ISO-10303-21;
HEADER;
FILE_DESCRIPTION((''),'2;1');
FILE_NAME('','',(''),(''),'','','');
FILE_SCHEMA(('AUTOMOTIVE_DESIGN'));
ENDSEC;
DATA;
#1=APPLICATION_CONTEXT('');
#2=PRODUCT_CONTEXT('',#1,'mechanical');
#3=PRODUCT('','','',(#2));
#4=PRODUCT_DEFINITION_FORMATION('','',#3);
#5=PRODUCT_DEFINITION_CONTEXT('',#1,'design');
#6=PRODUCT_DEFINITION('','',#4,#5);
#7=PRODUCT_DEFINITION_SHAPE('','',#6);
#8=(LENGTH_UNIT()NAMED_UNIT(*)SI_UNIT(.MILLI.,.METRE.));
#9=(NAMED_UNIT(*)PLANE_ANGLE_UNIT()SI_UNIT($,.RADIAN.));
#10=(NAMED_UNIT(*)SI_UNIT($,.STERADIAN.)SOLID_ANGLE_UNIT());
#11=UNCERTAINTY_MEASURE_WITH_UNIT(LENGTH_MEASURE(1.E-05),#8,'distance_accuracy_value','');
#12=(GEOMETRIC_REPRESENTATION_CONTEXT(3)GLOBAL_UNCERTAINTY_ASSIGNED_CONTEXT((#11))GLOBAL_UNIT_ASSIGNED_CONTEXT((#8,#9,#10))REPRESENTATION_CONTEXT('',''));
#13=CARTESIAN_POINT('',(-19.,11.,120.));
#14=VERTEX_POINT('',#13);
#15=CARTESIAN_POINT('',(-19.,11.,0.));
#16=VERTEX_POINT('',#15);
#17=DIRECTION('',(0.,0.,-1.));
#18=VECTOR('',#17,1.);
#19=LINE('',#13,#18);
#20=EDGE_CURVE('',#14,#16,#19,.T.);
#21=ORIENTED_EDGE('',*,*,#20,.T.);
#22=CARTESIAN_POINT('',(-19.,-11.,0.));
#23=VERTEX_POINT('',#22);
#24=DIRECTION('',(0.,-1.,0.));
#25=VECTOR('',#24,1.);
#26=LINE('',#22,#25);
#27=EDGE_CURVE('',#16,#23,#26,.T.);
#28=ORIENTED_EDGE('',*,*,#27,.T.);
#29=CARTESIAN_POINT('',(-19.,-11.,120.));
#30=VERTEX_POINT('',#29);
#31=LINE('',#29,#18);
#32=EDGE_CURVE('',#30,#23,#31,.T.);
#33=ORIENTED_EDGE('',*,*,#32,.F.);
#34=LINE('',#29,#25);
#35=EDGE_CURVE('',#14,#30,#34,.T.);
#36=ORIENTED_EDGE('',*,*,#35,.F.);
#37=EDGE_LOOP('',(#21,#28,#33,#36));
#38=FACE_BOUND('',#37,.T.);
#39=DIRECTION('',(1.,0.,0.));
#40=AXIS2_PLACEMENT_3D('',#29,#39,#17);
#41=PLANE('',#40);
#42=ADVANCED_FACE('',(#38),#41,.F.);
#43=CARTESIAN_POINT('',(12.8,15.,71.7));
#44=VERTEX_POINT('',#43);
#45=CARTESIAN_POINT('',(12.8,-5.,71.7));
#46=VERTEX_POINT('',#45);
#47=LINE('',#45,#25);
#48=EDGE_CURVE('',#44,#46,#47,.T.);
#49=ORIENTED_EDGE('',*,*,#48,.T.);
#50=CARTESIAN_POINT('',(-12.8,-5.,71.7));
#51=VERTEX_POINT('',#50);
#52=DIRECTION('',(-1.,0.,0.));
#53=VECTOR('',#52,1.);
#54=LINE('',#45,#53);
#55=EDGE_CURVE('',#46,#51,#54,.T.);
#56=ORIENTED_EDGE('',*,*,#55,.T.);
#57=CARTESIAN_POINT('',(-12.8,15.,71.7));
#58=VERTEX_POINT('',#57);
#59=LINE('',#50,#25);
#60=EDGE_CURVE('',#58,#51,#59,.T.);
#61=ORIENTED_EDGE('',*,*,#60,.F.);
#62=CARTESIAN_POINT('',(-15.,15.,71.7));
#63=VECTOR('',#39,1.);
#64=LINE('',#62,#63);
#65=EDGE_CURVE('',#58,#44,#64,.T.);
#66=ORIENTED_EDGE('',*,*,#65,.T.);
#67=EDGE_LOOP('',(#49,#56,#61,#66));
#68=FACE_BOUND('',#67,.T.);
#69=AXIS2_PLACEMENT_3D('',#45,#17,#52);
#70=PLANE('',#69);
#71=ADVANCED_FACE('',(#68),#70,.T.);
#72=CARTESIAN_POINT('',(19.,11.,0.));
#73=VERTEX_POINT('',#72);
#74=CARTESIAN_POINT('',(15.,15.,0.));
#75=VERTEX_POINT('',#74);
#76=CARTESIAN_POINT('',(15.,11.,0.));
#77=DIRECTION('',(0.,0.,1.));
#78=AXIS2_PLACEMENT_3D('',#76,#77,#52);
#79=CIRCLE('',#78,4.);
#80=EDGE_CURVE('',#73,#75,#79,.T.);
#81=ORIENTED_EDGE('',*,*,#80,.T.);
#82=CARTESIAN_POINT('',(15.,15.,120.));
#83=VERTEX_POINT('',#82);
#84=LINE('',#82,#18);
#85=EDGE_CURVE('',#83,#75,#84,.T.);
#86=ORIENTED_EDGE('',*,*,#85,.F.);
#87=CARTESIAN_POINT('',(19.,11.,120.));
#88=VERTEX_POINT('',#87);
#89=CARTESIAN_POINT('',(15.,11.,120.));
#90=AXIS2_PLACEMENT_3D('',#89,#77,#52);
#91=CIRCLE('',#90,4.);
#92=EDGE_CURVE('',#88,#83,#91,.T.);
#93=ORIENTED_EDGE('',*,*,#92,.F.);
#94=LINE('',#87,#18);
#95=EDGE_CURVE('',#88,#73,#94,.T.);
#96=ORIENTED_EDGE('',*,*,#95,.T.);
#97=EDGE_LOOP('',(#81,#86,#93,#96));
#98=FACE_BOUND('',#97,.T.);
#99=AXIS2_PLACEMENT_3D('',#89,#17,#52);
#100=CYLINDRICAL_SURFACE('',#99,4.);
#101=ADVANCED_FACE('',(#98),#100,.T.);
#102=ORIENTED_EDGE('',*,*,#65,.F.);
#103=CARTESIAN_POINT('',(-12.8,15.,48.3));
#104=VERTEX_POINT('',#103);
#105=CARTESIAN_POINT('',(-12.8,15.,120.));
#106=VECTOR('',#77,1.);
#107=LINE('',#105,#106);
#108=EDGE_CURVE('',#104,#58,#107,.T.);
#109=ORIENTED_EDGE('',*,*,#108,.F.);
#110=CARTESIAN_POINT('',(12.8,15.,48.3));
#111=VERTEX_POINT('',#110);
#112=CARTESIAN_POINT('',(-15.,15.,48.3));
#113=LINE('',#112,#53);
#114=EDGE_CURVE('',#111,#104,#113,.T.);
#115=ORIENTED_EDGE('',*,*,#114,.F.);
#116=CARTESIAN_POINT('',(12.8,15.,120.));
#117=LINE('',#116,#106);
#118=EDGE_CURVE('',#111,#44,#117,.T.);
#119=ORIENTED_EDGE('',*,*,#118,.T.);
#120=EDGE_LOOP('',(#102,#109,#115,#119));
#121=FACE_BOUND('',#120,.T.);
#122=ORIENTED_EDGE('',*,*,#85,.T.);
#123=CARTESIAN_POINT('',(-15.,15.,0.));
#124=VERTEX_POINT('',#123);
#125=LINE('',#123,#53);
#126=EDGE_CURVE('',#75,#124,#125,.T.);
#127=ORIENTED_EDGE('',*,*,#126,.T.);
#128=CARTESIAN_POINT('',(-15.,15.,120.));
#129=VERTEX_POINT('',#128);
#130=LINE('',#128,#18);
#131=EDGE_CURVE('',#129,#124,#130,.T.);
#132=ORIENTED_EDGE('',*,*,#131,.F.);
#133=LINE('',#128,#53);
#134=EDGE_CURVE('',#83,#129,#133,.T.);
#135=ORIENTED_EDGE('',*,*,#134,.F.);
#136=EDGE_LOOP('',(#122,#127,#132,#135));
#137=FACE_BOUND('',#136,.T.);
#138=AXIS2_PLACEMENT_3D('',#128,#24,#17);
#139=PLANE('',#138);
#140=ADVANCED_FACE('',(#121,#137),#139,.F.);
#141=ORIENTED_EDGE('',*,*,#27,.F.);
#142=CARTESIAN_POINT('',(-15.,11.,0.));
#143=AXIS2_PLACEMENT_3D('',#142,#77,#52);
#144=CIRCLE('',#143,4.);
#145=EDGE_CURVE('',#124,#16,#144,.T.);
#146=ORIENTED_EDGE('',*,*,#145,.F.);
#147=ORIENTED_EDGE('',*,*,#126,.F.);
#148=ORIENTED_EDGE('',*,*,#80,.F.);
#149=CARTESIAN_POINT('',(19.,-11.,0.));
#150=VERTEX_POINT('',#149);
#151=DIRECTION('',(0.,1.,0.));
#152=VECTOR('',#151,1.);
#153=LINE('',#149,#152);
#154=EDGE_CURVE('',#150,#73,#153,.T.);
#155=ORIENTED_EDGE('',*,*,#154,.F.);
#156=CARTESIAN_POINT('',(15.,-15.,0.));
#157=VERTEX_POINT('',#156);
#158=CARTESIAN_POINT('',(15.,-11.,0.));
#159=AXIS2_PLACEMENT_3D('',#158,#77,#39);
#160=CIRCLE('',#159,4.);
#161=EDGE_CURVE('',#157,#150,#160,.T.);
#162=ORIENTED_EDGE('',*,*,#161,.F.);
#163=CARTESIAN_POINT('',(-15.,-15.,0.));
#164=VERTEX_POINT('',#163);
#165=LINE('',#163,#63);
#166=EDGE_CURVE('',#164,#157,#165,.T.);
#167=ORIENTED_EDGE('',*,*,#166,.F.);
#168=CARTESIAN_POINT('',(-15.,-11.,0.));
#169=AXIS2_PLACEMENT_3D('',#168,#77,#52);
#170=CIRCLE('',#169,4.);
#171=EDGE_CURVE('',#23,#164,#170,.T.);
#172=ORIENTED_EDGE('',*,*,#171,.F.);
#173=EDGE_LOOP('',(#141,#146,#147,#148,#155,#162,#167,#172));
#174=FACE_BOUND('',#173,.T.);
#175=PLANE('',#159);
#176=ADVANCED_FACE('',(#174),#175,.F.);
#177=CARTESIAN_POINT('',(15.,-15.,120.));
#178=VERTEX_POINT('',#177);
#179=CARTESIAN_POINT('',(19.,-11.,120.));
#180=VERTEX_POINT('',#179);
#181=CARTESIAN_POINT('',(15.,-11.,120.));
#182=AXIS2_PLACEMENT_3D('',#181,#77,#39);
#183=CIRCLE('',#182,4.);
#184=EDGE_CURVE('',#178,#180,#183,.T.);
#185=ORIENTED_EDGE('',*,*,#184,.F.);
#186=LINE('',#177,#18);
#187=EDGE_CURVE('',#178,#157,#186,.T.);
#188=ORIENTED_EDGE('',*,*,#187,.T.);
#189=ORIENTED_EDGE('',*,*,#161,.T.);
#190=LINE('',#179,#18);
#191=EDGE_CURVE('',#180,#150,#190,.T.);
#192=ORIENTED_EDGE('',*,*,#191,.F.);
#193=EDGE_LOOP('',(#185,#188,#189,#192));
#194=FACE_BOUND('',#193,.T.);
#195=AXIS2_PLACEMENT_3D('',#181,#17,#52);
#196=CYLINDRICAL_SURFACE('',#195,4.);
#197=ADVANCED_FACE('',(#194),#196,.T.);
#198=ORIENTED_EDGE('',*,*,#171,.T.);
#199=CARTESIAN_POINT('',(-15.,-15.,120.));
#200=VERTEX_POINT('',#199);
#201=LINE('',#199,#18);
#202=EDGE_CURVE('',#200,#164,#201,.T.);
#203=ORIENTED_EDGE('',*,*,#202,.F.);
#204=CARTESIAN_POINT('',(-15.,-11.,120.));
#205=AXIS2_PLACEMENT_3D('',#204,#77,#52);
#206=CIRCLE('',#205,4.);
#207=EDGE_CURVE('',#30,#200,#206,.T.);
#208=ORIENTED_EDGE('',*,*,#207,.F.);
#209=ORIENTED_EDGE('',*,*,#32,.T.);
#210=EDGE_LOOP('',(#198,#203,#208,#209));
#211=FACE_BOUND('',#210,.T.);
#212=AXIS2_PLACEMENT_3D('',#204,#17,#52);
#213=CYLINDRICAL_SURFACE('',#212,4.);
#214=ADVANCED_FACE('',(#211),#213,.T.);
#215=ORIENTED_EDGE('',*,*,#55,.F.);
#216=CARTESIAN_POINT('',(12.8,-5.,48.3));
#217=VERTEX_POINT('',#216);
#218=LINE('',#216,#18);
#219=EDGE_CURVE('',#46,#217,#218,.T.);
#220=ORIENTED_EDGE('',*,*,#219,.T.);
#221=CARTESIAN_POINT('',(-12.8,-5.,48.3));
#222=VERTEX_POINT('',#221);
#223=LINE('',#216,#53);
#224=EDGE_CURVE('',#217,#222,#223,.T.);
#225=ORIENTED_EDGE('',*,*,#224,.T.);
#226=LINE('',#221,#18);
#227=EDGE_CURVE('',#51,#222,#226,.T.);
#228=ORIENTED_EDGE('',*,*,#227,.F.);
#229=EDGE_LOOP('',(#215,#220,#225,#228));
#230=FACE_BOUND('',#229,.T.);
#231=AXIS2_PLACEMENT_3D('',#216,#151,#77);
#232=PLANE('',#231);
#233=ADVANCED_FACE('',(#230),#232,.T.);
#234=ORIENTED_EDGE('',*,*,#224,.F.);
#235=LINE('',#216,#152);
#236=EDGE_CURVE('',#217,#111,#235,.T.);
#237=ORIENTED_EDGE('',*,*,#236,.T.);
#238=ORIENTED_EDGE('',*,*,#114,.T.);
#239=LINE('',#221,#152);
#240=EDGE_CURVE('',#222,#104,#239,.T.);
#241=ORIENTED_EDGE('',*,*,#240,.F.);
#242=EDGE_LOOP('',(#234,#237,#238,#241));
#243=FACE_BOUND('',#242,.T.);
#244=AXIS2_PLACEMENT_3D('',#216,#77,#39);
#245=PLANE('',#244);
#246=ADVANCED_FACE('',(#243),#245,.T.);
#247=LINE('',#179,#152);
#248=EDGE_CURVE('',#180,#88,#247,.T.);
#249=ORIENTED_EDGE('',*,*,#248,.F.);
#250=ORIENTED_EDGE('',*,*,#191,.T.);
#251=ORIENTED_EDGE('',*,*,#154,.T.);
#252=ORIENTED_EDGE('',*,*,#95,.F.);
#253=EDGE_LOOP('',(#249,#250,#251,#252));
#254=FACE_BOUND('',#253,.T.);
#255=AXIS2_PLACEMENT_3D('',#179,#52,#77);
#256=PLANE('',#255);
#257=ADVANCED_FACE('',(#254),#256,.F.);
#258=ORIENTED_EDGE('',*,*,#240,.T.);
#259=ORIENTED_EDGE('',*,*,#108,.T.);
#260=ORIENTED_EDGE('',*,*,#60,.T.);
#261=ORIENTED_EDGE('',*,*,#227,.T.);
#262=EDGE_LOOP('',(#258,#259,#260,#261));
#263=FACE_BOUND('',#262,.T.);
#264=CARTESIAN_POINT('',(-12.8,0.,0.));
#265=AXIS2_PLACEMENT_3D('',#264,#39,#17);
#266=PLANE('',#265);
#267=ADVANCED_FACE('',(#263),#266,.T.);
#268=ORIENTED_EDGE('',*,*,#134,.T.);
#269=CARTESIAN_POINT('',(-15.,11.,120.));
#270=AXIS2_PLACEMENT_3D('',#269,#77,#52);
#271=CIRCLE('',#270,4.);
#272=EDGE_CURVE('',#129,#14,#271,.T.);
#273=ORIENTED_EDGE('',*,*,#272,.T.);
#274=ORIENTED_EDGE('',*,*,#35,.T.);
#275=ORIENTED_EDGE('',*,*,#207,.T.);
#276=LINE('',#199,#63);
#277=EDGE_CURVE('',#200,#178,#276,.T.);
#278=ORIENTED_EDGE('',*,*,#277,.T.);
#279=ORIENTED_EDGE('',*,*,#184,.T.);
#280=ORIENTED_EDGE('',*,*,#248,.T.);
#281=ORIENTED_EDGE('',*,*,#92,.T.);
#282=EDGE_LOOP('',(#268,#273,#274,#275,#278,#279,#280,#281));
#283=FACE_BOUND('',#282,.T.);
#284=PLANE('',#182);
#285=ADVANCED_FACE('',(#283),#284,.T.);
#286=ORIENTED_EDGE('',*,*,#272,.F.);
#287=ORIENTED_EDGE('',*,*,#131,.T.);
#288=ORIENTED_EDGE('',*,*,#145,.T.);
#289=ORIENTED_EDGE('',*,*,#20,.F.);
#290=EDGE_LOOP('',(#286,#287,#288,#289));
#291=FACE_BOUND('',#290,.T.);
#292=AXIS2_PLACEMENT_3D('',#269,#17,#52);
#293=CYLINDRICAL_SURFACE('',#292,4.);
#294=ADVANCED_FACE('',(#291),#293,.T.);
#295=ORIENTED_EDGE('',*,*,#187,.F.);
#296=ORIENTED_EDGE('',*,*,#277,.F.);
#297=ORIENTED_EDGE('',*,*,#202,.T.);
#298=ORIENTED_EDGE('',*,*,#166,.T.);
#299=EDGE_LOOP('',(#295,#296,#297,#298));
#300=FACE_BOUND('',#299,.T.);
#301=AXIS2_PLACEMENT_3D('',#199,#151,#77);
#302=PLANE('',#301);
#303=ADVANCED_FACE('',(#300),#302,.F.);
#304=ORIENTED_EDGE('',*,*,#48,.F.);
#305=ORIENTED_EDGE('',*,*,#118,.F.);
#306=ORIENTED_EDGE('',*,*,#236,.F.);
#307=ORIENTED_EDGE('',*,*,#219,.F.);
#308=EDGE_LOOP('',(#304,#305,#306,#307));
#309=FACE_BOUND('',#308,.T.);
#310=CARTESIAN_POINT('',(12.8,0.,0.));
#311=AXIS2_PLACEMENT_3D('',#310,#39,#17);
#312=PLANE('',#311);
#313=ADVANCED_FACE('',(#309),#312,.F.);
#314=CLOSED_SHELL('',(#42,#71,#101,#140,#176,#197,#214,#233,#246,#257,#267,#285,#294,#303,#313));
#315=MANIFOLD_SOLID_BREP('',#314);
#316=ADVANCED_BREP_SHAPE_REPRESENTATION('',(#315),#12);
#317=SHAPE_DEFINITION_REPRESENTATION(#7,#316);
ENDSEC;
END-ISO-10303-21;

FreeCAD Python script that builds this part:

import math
import FreeCAD as App
import Part
import Sketcher
from FreeCAD import Vector
Q = App.Units.Quantity

doc = App.newDocument("Part")
body = doc.addObject("PartDesign::Body", "Body")

sketch1 = body.newObject("Sketcher::SketchObject", "Sketch")
sketch1.AttachmentSupport = (doc.getObject("XY_Plane"), [""])
sketch1.MapMode = "FlatFace"
sketch1.addGeometry([
    Part.LineSegment(Vector(-15, -15, 0), Vector(15, -15, 0)),
    Part.ArcOfCircle(Part.Circle(Vector(15, -11, 0), Vector(0, 0, 1), 4), math.radians(-90), math.radians(0)),
    Part.LineSegment(Vector(19, -11, 0), Vector(19, 11, 0)),
    Part.ArcOfCircle(Part.Circle(Vector(15, 11, 0), Vector(0, 0, 1), 4), math.radians(0), math.radians(90)),
    Part.LineSegment(Vector(15, 15, 0), Vector(-15, 15, 0)),
    Part.ArcOfCircle(Part.Circle(Vector(-15, 11, 0), Vector(0, 0, 1), 4), math.radians(90), math.radians(180)),
    Part.LineSegment(Vector(-19, 11, 0), Vector(-19, -11, 0)),
    Part.ArcOfCircle(Part.Circle(Vector(-15, -11, 0), Vector(0, 0, 1), 4), math.radians(180), math.radians(270)),
], False)
sketch1.addConstraint([
    Sketcher.Constraint("Tangent", 0, 2, 1, 1),
    Sketcher.Constraint("Tangent", 1, 2, 2, 1),
    Sketcher.Constraint("Tangent", 2, 2, 3, 1),
    Sketcher.Constraint("Tangent", 3, 2, 4, 1),
    Sketcher.Constraint("Tangent", 4, 2, 5, 1),
    Sketcher.Constraint("Tangent", 5, 2, 6, 1),
    Sketcher.Constraint("Tangent", 6, 2, 7, 1),
    Sketcher.Constraint("Tangent", 7, 2, 0, 1),
    Sketcher.Constraint("Horizontal", 0),
    Sketcher.Constraint("Vertical", 2),
    Sketcher.Constraint("Horizontal", 4),
    Sketcher.Constraint("Vertical", 6),
    Sketcher.Constraint("Equal", 1, 3),
    Sketcher.Constraint("Equal", 3, 5),
    Sketcher.Constraint("Equal", 5, 7),
    Sketcher.Constraint("Symmetric", 1, 3, 5, 3, -1, 1),
    Sketcher.Constraint("Radius", 1, Q("4 mm")),
    Sketcher.Constraint("DistanceX", 0, 1, 0, 2, Q("30 mm")),
    Sketcher.Constraint("DistanceY", 2, 1, 2, 2, Q("22 mm")),
])
pad1 = body.newObject("PartDesign::Pad", "Pad")
pad1.Profile = sketch1
pad1.Length = 120

sketch2 = body.newObject("Sketcher::SketchObject", "Sketch001")
sketch2.AttachmentSupport = (doc.getObject("YZ_Plane"), [""])
sketch2.MapMode = "FlatFace"
sketch2.addGeometry([
    Part.LineSegment(Vector(24, 72, 0), Vector(-5, 72, 0)),
    Part.LineSegment(Vector(-5, 72, 0), Vector(-5, 48, 0)),
    Part.LineSegment(Vector(-5, 48, 0), Vector(24, 48, 0)),
    Part.LineSegment(Vector(24, 48, 0), Vector(24, 72, 0)),
], False)
sketch2.addConstraint([
    Sketcher.Constraint("Coincident", 0, 2, 1, 1),
    Sketcher.Constraint("Coincident", 1, 2, 2, 1),
    Sketcher.Constraint("Coincident", 2, 2, 3, 1),
    Sketcher.Constraint("Coincident", 3, 2, 0, 1),
    Sketcher.Constraint("Horizontal", 0),
    Sketcher.Constraint("Vertical", 1),
    Sketcher.Constraint("Horizontal", 2),
    Sketcher.Constraint("Vertical", 3),
    Sketcher.Constraint("DistanceX", 0, 2, 0, 1, Q("29 mm")),
    Sketcher.Constraint("DistanceY", 1, 2, 1, 1, Q("23.4 mm")),
    Sketcher.Constraint("DistanceX", 0, 2, -1, 1, Q("5 mm")),
    Sketcher.Constraint("DistanceY", -1, 1, 0, 2, Q("71.7 mm")),
])
pocket1 = body.newObject("PartDesign::Pocket", "Pocket")
pocket1.Profile = sketch2
pocket1.Type = "TwoLengths"
pocket1.Length = 12.8
pocket1.Length2 = 12.8
pocket1.Reversed = True

doc.recompute()
